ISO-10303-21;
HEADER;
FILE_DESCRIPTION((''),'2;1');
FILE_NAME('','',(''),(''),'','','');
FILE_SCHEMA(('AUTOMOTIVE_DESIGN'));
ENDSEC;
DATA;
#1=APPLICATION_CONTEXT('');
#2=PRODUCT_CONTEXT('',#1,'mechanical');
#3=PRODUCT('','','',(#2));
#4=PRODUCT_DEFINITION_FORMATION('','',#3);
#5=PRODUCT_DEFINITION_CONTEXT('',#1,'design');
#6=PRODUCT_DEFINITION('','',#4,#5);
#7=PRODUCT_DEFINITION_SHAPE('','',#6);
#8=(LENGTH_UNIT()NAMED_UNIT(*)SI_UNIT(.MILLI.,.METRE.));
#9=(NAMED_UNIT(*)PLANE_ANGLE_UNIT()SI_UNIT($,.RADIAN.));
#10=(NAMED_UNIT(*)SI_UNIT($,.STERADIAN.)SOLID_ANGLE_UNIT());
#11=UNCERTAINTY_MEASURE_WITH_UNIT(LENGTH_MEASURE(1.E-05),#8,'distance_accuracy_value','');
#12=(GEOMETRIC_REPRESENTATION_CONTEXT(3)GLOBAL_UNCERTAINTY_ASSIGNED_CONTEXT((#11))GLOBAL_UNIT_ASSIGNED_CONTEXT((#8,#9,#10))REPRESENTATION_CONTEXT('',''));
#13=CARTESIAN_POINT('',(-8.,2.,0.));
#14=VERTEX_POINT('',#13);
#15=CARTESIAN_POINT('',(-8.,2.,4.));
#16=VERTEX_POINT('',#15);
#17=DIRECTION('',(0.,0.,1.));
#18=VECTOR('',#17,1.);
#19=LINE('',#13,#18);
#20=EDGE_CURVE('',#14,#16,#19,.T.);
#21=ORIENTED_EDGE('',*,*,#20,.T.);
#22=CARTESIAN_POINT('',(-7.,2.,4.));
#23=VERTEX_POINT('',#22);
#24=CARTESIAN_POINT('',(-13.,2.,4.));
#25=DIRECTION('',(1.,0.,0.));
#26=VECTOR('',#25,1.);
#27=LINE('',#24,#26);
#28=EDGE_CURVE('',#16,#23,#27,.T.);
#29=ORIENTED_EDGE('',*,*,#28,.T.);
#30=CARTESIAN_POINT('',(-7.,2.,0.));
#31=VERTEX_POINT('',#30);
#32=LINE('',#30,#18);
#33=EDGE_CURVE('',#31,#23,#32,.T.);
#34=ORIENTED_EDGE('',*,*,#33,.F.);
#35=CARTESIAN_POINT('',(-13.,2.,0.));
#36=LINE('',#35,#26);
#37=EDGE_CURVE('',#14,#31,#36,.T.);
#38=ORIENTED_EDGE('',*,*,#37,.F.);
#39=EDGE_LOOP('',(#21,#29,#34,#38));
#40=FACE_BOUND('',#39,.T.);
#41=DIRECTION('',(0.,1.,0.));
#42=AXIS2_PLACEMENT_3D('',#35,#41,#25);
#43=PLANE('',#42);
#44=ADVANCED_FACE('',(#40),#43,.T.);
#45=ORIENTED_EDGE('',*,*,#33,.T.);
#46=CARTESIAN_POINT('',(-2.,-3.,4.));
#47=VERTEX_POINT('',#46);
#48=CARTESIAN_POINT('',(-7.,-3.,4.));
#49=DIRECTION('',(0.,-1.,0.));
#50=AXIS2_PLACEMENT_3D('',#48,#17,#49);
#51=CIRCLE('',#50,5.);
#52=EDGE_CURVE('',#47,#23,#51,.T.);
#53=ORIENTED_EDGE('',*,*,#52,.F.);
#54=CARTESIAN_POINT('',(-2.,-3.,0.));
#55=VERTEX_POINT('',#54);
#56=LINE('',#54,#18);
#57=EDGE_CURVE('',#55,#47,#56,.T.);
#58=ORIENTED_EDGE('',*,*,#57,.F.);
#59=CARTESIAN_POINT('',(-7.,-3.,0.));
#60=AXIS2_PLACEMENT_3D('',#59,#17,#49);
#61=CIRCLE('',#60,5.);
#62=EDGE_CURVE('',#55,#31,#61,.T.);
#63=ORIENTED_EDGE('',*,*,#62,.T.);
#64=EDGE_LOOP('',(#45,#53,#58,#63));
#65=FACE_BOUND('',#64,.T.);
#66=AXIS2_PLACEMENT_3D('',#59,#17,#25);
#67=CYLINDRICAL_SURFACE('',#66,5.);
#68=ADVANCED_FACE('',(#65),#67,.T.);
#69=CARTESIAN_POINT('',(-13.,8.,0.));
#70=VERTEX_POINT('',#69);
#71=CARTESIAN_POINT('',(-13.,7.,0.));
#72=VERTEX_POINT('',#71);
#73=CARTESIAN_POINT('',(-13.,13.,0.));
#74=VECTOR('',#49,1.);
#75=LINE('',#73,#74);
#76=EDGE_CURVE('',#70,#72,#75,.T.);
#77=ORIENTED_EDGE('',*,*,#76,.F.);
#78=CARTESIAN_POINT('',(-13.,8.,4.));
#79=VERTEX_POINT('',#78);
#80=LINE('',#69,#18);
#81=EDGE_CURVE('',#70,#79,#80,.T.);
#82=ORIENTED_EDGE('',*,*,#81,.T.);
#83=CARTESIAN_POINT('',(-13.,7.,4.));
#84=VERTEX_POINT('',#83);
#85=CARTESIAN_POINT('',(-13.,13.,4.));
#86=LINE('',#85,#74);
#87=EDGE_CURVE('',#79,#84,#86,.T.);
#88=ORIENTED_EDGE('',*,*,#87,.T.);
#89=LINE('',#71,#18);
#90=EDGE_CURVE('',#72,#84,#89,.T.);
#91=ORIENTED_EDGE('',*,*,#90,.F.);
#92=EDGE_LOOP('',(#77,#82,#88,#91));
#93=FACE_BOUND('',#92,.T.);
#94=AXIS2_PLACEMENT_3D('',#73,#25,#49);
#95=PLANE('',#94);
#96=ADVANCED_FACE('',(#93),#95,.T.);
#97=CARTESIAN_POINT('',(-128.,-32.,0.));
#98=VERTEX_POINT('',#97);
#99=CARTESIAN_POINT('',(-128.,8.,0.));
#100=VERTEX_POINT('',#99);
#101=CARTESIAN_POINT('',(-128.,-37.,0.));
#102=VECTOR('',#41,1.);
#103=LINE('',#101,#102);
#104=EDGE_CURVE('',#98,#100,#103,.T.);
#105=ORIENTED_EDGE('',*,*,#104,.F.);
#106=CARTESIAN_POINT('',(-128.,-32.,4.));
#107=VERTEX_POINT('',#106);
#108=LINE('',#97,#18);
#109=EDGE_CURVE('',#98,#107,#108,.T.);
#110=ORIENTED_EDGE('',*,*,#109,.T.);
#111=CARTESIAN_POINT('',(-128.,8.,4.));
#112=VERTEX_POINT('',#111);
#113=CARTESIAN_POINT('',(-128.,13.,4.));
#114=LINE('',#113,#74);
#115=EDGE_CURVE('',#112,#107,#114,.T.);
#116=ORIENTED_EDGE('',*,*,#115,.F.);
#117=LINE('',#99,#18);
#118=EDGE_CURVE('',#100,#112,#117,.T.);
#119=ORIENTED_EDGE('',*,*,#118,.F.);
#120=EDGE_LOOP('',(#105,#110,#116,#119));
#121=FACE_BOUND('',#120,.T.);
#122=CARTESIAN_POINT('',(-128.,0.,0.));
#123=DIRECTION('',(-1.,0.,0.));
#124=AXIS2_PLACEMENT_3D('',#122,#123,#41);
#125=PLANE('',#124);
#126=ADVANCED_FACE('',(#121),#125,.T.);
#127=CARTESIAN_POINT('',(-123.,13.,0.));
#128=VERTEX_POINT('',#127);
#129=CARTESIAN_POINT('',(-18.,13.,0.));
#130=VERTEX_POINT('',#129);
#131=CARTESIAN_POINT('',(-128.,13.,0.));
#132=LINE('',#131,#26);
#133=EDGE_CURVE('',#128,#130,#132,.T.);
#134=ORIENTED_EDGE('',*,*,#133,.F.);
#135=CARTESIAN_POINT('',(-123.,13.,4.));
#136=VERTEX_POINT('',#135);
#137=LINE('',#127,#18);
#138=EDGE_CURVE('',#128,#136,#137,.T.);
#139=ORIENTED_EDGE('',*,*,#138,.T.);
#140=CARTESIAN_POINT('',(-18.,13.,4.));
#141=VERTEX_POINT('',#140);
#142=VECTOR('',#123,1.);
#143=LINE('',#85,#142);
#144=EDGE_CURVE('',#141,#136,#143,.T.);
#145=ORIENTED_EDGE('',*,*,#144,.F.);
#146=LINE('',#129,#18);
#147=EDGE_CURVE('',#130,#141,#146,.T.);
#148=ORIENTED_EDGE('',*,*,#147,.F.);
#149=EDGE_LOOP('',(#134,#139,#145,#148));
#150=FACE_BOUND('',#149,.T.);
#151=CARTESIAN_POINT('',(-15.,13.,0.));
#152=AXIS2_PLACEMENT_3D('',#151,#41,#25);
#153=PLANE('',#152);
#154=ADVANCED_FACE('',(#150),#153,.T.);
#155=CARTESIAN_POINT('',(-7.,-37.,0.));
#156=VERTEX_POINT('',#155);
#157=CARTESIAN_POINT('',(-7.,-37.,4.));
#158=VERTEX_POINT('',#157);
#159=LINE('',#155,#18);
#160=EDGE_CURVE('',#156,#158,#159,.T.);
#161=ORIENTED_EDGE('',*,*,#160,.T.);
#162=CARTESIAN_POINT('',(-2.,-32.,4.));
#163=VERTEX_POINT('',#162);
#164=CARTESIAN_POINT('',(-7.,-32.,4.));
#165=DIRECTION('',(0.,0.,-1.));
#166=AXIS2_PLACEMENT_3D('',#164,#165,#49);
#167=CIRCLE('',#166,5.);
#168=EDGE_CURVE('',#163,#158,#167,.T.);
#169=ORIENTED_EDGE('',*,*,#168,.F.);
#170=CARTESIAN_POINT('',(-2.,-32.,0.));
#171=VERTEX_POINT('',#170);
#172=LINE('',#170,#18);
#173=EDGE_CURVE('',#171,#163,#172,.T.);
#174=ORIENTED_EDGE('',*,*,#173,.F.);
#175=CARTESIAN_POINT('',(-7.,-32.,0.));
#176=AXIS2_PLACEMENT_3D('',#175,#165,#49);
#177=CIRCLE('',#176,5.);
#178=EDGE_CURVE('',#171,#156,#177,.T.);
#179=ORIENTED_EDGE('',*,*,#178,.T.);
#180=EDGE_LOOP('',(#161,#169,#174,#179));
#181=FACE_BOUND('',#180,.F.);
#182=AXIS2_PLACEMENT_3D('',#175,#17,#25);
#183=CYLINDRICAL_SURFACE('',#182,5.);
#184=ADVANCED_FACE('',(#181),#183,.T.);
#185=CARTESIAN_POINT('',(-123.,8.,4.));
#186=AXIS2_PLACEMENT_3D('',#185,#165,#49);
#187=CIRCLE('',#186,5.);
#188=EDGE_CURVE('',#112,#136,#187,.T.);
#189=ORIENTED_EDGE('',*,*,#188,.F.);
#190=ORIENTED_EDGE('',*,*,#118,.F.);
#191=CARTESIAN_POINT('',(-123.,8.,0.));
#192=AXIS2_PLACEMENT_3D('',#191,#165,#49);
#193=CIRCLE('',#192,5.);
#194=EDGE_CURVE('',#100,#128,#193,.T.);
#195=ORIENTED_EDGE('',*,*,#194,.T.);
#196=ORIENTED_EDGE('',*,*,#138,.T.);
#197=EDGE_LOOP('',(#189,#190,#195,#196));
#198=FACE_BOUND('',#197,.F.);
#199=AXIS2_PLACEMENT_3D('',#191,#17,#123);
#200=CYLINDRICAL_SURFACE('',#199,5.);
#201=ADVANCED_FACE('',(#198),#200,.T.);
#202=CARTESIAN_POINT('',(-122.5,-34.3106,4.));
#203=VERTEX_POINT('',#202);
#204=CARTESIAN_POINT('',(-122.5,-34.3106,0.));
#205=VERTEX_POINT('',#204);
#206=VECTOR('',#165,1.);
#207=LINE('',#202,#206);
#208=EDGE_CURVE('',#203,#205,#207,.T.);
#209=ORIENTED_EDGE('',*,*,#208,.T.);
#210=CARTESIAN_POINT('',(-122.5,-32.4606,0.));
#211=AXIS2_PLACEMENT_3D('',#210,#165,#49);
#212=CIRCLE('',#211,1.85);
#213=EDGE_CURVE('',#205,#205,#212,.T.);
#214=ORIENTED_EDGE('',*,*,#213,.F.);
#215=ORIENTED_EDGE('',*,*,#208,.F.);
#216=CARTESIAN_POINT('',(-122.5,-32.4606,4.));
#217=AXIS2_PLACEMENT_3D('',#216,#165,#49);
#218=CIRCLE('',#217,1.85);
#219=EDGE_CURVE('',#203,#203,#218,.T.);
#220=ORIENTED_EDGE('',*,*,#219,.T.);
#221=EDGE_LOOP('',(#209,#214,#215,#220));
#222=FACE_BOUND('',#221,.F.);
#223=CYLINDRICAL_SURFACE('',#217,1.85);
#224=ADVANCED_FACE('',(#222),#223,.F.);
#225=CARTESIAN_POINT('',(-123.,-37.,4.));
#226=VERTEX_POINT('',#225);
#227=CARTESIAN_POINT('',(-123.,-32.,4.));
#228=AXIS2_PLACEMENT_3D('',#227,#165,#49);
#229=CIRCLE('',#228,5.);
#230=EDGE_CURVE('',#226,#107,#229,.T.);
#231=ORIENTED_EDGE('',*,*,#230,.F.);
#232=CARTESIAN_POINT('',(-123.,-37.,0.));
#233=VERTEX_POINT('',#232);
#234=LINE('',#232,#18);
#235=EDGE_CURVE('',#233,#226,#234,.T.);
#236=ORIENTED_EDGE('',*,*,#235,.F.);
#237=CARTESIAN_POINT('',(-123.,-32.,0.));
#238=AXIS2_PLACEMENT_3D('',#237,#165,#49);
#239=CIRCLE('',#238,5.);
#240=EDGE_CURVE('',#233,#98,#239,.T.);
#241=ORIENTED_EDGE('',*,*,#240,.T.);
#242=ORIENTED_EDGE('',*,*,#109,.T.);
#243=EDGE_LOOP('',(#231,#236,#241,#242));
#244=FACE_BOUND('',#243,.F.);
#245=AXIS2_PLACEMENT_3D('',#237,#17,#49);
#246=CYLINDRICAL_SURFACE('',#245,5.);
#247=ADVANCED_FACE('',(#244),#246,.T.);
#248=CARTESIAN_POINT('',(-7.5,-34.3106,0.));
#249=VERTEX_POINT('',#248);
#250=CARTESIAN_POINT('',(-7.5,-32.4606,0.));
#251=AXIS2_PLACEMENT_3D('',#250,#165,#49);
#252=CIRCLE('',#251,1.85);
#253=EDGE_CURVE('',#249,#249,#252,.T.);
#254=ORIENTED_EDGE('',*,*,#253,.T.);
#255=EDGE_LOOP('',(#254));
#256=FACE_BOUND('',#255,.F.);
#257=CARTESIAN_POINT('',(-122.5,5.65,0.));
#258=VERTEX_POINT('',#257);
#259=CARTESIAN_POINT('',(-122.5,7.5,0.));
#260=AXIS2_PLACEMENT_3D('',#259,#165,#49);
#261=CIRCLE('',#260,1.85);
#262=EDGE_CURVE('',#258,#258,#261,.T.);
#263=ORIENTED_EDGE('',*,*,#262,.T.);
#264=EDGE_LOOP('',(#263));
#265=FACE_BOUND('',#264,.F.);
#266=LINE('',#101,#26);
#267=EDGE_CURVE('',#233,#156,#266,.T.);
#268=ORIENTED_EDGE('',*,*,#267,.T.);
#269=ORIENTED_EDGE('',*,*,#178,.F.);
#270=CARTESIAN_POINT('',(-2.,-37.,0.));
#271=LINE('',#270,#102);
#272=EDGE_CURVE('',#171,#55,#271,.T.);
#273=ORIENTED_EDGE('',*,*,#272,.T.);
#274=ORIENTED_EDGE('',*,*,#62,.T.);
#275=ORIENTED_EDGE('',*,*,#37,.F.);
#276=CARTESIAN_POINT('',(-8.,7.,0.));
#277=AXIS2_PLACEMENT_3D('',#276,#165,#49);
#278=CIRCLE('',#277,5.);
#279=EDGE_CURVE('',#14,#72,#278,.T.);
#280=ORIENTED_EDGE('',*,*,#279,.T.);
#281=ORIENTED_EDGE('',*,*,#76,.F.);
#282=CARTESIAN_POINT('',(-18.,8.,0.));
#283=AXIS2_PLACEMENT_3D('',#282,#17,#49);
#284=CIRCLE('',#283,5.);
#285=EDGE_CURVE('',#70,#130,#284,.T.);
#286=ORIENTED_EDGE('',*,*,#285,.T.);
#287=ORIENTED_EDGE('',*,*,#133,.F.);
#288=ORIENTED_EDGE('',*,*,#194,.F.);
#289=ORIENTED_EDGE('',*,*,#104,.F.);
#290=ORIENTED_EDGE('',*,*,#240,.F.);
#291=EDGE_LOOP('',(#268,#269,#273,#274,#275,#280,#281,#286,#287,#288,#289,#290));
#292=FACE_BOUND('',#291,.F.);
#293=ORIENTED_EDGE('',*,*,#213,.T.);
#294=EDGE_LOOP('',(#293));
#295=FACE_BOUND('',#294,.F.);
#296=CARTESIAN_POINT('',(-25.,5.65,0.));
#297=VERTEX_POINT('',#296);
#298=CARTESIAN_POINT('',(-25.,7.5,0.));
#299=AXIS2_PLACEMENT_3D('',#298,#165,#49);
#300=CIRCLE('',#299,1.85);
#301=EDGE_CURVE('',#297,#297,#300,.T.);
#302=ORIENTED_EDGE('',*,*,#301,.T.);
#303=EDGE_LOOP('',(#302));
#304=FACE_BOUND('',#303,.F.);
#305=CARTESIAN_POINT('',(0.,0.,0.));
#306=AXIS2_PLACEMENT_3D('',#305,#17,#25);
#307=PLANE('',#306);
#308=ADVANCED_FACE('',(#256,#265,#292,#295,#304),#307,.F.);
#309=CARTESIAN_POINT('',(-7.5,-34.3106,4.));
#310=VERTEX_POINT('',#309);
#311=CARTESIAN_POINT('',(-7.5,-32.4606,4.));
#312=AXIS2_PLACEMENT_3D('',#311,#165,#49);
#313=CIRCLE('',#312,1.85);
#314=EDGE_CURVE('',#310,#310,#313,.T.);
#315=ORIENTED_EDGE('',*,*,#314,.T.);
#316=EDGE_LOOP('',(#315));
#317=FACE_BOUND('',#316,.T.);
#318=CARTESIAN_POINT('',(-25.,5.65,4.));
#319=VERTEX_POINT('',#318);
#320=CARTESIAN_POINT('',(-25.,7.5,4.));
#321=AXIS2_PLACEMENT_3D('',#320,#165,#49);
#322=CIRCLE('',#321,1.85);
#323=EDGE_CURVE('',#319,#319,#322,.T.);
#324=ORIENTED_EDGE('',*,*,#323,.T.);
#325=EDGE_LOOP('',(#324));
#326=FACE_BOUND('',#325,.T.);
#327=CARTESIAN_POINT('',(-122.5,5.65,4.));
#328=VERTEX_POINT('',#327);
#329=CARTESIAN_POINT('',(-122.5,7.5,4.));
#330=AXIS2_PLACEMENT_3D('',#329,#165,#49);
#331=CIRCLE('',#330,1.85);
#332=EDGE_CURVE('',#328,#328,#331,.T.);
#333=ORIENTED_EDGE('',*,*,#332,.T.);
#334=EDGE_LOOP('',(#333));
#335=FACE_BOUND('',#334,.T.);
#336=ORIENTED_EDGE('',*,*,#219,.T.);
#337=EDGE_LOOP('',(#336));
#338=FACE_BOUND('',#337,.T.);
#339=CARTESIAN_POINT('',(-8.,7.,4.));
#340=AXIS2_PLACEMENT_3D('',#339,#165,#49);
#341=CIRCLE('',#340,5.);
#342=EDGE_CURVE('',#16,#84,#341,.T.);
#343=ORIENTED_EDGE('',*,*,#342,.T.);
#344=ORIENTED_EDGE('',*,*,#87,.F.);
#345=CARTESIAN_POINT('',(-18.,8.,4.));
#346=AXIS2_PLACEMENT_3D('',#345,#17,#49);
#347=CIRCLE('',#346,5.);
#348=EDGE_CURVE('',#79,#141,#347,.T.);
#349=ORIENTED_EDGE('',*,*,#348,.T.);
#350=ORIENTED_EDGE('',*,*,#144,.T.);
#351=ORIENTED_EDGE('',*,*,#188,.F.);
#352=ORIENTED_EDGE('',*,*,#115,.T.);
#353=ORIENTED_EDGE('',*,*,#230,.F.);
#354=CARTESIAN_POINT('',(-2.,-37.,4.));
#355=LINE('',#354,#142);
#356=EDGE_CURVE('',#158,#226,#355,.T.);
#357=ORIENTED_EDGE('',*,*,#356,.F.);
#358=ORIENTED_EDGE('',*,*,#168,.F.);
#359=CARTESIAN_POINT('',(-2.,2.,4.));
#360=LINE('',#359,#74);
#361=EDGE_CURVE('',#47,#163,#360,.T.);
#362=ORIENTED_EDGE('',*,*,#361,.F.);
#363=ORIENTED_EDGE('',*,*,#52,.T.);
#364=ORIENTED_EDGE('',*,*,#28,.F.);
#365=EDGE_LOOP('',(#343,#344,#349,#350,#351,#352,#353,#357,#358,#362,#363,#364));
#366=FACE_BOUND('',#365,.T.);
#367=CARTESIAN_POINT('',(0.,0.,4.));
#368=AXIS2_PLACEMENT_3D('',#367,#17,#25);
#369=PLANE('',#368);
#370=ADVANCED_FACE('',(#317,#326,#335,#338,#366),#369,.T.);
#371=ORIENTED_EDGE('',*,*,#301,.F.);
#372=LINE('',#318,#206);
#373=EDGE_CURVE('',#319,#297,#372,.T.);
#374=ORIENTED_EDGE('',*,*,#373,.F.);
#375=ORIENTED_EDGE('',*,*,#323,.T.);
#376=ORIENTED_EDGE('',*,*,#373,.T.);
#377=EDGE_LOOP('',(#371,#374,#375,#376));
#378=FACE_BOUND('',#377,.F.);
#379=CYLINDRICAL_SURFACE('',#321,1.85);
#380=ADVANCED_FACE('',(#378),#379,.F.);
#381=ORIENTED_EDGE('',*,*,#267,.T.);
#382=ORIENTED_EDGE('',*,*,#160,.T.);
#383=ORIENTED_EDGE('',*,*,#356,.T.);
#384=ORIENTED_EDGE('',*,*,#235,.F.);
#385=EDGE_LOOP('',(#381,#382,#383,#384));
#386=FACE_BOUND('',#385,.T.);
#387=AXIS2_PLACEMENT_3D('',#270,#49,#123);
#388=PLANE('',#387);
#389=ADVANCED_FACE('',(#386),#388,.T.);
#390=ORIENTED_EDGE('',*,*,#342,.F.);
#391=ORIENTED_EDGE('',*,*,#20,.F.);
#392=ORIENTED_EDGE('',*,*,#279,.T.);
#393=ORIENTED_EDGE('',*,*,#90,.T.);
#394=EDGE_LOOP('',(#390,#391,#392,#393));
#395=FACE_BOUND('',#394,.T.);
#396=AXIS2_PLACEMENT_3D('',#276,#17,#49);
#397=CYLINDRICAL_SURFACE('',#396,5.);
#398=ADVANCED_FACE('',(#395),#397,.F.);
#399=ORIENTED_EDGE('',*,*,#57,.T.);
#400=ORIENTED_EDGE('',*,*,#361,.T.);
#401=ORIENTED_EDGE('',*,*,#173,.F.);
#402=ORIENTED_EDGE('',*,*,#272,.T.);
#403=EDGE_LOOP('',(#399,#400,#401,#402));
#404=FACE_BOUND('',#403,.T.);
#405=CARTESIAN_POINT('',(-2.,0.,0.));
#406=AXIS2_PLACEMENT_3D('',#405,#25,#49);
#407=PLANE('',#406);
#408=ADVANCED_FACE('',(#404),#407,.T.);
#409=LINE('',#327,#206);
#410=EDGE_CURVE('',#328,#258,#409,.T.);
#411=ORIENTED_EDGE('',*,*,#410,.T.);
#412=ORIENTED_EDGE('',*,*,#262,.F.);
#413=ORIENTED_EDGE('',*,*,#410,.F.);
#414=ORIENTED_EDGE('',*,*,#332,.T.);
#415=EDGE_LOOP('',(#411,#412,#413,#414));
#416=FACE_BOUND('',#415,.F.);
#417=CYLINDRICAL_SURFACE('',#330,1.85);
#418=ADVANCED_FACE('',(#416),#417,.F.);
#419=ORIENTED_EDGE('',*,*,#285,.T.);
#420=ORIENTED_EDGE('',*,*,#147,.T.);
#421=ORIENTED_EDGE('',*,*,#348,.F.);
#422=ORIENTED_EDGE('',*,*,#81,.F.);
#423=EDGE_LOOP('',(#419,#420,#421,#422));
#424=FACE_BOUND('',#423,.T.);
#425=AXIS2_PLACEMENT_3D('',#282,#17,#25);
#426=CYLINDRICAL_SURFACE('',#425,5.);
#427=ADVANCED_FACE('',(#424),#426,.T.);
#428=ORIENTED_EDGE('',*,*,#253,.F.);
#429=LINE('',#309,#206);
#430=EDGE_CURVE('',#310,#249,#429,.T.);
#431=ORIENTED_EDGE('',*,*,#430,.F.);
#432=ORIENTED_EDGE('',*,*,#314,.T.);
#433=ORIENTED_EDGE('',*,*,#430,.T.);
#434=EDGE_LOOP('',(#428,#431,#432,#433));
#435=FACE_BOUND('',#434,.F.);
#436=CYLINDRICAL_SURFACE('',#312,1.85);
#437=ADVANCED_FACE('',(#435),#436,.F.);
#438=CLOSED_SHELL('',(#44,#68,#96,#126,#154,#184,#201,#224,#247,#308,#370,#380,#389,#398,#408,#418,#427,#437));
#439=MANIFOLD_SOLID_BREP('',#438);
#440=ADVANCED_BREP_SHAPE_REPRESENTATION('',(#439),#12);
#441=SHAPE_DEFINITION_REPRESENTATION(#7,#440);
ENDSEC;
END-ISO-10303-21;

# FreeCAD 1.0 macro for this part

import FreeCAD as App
import Part
import Sketcher
Q = App.Units.Quantity


def edges_at(feature, points):
    """Names of the edges that pass closest to the given points."""
    edges = feature.Shape.Edges
    near = lambda p: min(range(len(edges)), key=lambda i: edges[i].distToShape(Part.Vertex(*p))[0])
    return sorted({f"Edge{near(p) + 1}" for p in points})

doc = App.newDocument("Part")
body = doc.addObject("PartDesign::Body", "Body")

# Sketch on XY plane
sketch1 = body.newObject("Sketcher::SketchObject", "Sketch")
sketch1.AttachmentSupport = (doc.getObject("XY_Plane"), [""])
sketch1.MapMode = "FlatFace"
sketch1.addGeometry([
    Part.LineSegment(App.Vector(-2, -37, 0), App.Vector(-2, 2, 0)),  # 0
    Part.LineSegment(App.Vector(-2, 2, 0), App.Vector(-13, 2, 0)),  # 1
    Part.LineSegment(App.Vector(-13, 2, 0), App.Vector(-13, 13, 0)),  # 2
    Part.LineSegment(App.Vector(-13, 13, 0), App.Vector(-128, 13, 0)),  # 3
    Part.LineSegment(App.Vector(-128, 13, 0), App.Vector(-128, -37, 0)),  # 4
    Part.LineSegment(App.Vector(-128, -37, 0), App.Vector(-2, -37, 0)),  # 5
], False)
sketch1.addConstraint([
    Sketcher.Constraint("Coincident", 0, 2, 1, 1),
    Sketcher.Constraint("Coincident", 1, 2, 2, 1),
    Sketcher.Constraint("Coincident", 2, 2, 3, 1),
    Sketcher.Constraint("Coincident", 3, 2, 4, 1),
    Sketcher.Constraint("Coincident", 4, 2, 5, 1),
    Sketcher.Constraint("Coincident", 5, 2, 0, 1),
    Sketcher.Constraint("Vertical", 0),
    Sketcher.Constraint("Horizontal", 1),
    Sketcher.Constraint("Vertical", 2),
    Sketcher.Constraint("Horizontal", 3),
    Sketcher.Constraint("Vertical", 4),
    Sketcher.Constraint("Horizontal", 5),
    Sketcher.Constraint("Equal", 1, 2),
    Sketcher.Constraint("DistanceX", 1, 2, 1, 1, Q("11 mm")),
    Sketcher.Constraint("DistanceX", 3, 2, 3, 1, Q("115 mm")),
    Sketcher.Constraint("DistanceY", 0, 1, 0, 2, Q("39 mm")),
    Sketcher.Constraint("DistanceX", 0, 2, -1, 1, Q("2 mm")),
    Sketcher.Constraint("DistanceY", -1, 1, 0, 2, Q("2 mm")),
])
pad1 = body.newObject("PartDesign::Pad", "Pad")
pad1.Profile = sketch1
pad1.Length = 4

# Sketch on XY plane
sketch2 = body.newObject("Sketcher::SketchObject", "Sketch001")
sketch2.AttachmentSupport = (doc.getObject("XY_Plane"), [""])
sketch2.MapMode = "FlatFace"
sketch2.AttachmentOffset = App.Placement(App.Vector(0, 0, 4), App.Rotation())
sketch2.addGeometry([
    Part.Circle(App.Vector(-122.5, -32.5, 0), App.Vector(0, 0, 1), 1.9),
    Part.Circle(App.Vector(-122.5, 7.5, 0), App.Vector(0, 0, 1), 1.9),
    Part.Circle(App.Vector(-25, 7.5, 0), App.Vector(0, 0, 1), 1.9),
    Part.Circle(App.Vector(-7.5, -32.5, 0), App.Vector(0, 0, 1), 1.9),
], False)
sketch2.addConstraint([
    Sketcher.Constraint("Equal", 0, 1),
    Sketcher.Constraint("Equal", 1, 2),
    Sketcher.Constraint("Equal", 2, 3),
    Sketcher.Constraint("Horizontal", 1, 3, 2, 3),
    Sketcher.Constraint("Horizontal", 0, 3, 3, 3),
    Sketcher.Constraint("Vertical", 0, 3, 1, 3),
    Sketcher.Constraint("Diameter", 0, Q("3.7 mm")),
    Sketcher.Constraint("DistanceX", 2, 3, -1, 1, Q("25 mm")),
    Sketcher.Constraint("DistanceX", 0, 3, 3, 3, Q("115 mm")),
    Sketcher.Constraint("DistanceX", 0, 3, -1, 1, Q("122.5 mm")),
    Sketcher.Constraint("DistanceY", -1, 1, 1, 3, Q("7.5 mm")),
    Sketcher.Constraint("DistanceY", 0, 3, -1, 1, Q("32.4606 mm")),
])
doc.recompute()
hole = body.newObject("PartDesign::Hole", "Hole")
hole.Profile = sketch2
hole.ThreadType = "None"
hole.Diameter = 3.7
hole.DepthType = "Dimension"
hole.Depth = 8
hole.DrillPoint = "Angled"
hole.DrillPointAngle = 118
doc.recompute()

fillet = body.newObject("PartDesign::Fillet", "Fillet")
fillet.Base = (hole, edges_at(hole, [
    (-2, -37, 2),
    (-128, -37, 2),
    (-128, 13, 2),
    (-13, 13, 2),
    (-13, 2, 2),
    (-2, 2, 2),
]))
fillet.Radius = 5

doc.recompute()
